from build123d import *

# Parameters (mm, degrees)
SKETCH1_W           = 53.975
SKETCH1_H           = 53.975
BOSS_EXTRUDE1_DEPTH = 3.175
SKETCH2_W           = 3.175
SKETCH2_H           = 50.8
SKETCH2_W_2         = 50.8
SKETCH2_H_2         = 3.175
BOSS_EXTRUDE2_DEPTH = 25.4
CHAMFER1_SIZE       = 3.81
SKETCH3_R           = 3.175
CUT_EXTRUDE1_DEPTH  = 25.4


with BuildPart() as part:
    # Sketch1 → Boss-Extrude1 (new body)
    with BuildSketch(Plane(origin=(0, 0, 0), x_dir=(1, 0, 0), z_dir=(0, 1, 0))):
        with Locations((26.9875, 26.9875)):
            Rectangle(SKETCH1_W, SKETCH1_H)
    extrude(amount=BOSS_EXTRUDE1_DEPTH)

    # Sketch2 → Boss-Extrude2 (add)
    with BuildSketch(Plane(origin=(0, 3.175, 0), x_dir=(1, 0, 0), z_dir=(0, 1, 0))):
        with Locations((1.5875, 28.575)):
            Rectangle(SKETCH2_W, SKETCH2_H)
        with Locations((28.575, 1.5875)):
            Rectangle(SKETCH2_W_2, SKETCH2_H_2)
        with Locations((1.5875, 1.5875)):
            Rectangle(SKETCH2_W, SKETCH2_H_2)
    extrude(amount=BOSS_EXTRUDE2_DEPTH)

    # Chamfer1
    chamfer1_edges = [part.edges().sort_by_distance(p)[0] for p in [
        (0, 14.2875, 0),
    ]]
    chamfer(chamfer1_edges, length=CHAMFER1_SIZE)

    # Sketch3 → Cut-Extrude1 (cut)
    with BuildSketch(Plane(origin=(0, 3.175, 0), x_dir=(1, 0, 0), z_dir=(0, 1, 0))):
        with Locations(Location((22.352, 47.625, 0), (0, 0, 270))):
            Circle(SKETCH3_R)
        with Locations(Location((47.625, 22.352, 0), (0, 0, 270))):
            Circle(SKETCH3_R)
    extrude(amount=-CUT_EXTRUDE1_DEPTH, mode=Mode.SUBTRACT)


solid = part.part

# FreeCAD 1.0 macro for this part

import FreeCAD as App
import Part
import Sketcher

V = App.Vector
Q = App.Units.Quantity


def edges_at(feature, points):
    """Names of the edges that pass closest to the given points."""
    edges = feature.Shape.Edges
    near = lambda p: min(range(len(edges)), key=lambda i: edges[i].distToShape(Part.Vertex(*p))[0])
    return sorted({f"Edge{near(p) + 1}" for p in points})

doc = App.newDocument("Part")
body = doc.addObject("PartDesign::Body", "Body")

# Sketch on XZ plane
sketch1 = body.newObject("Sketcher::SketchObject", "Sketch")
sketch1.AttachmentSupport = (doc.getObject("XZ_Plane"), [""])
sketch1.MapMode = "FlatFace"
sketch1.addGeometry([
    Part.LineSegment(V(0, -54, 0), V(0, 0, 0)),
    Part.LineSegment(V(0, 0, 0), V(54, 0, 0)),
    Part.LineSegment(V(54, 0, 0), V(54, -54, 0)),
    Part.LineSegment(V(54, -54, 0), V(0, -54, 0)),
], False)
sketch1.addConstraint([
    Sketcher.Constraint("Coincident", 0, 2, 1, 1),
    Sketcher.Constraint("Coincident", 1, 2, 2, 1),
    Sketcher.Constraint("Coincident", 2, 2, 3, 1),
    Sketcher.Constraint("Coincident", 3, 2, 0, 1),
    Sketcher.Constraint("Vertical", 0),
    Sketcher.Constraint("Horizontal", 1),
    Sketcher.Constraint("Vertical", 2),
    Sketcher.Constraint("Horizontal", 3),
    Sketcher.Constraint("Coincident", 0, 2, -1, 1),
    Sketcher.Constraint("Equal", 3, 0),
    Sketcher.Constraint("DistanceX", 1, 1, 1, 2, Q("2.125 in")),
])
pad1 = body.newObject("PartDesign::Pad", "Pad")
pad1.Profile = sketch1
pad1.Length = Q("0.125 in")
pad1.Reversed = True

# Sketch on XZ plane
sketch2 = body.newObject("Sketcher::SketchObject", "Sketch001")
sketch2.AttachmentSupport = (doc.getObject("XZ_Plane"), [""])
sketch2.MapMode = "FlatFace"
sketch2.AttachmentOffset = App.Placement(V(0, 0, -0.125 * 25.4), App.Rotation())
sketch2.addGeometry([
    Part.LineSegment(V(0, -54, 0), V(0, 0, 0)),  # 0
    Part.LineSegment(V(0, 0, 0), V(54, 0, 0)),  # 1
    Part.LineSegment(V(54, 0, 0), V(54, -3.2, 0)),  # 2
    Part.LineSegment(V(54, -3.2, 0), V(3.2, -3.2, 0)),  # 3
    Part.LineSegment(V(3.2, -3.2, 0), V(3.2, -54, 0)),  # 4
    Part.LineSegment(V(3.2, -54, 0), V(0, -54, 0)),  # 5
], False)
sketch2.addConstraint([
    Sketcher.Constraint("Coincident", 0, 2, 1, 1),
    Sketcher.Constraint("Coincident", 1, 2, 2, 1),
    Sketcher.Constraint("Coincident", 2, 2, 3, 1),
    Sketcher.Constraint("Coincident", 3, 2, 4, 1),
    Sketcher.Constraint("Coincident", 4, 2, 5, 1),
    Sketcher.Constraint("Coincident", 5, 2, 0, 1),
    Sketcher.Constraint("Vertical", 0),
    Sketcher.Constraint("Horizontal", 1),
    Sketcher.Constraint("Vertical", 2),
    Sketcher.Constraint("Horizontal", 3),
    Sketcher.Constraint("Vertical", 4),
    Sketcher.Constraint("Horizontal", 5),
    Sketcher.Constraint("Coincident", 0, 2, -1, 1),
    Sketcher.Constraint("Equal", 1, 0),
    Sketcher.Constraint("Equal", 5, 2),
    Sketcher.Constraint("DistanceX", 3, 2, 3, 1, Q("2 in")),
    Sketcher.Constraint("DistanceX", 1, 1, 1, 2, Q("2.125 in")),
])
pad2 = body.newObject("PartDesign::Pad", "Pad001")
pad2.Profile = sketch2
pad2.Length = Q("1 in")
pad2.Reversed = True
doc.recompute()

chamfer = body.newObject("PartDesign::Chamfer", "Chamfer")
chamfer.Base = (pad2, edges_at(pad2, [(0, 14.287, 0)]))
chamfer.Size = Q("0.15 in")

# Sketch on XZ plane
sketch3 = body.newObject("Sketcher::SketchObject", "Sketch002")
sketch3.AttachmentSupport = (doc.getObject("XZ_Plane"), [""])
sketch3.MapMode = "FlatFace"
sketch3.AttachmentOffset = App.Placement(V(0, 0, -0.125 * 25.4), App.Rotation())
sketch3.addGeometry([
    Part.Circle(V(22.4, -47.6, 0), V(0, 0, 1), 3.2),
    Part.Circle(V(47.6, -22.4, 0), V(0, 0, 1), 3.2),
], False)
sketch3.addConstraint([
    Sketcher.Constraint("Equal", 0, 1),
    Sketcher.Constraint("Diameter", 0, Q("0.25 in")),
    Sketcher.Constraint("DistanceX", -1, 1, 0, 3, Q("0.88 in")),
    Sketcher.Constraint("DistanceY", 1, 3, -1, 1, Q("0.88 in")),
    Sketcher.Constraint("DistanceY", 0, 3, -1, 1, Q("1.875 in")),
    Sketcher.Constraint("DistanceX", -1, 1, 1, 3, Q("1.875 in")),
])
pocket1 = body.newObject("PartDesign::Pocket", "Pocket")
pocket1.Profile = sketch3
pocket1.Length = Q("1 in")
pocket1.Reversed = True

doc.recompute()
